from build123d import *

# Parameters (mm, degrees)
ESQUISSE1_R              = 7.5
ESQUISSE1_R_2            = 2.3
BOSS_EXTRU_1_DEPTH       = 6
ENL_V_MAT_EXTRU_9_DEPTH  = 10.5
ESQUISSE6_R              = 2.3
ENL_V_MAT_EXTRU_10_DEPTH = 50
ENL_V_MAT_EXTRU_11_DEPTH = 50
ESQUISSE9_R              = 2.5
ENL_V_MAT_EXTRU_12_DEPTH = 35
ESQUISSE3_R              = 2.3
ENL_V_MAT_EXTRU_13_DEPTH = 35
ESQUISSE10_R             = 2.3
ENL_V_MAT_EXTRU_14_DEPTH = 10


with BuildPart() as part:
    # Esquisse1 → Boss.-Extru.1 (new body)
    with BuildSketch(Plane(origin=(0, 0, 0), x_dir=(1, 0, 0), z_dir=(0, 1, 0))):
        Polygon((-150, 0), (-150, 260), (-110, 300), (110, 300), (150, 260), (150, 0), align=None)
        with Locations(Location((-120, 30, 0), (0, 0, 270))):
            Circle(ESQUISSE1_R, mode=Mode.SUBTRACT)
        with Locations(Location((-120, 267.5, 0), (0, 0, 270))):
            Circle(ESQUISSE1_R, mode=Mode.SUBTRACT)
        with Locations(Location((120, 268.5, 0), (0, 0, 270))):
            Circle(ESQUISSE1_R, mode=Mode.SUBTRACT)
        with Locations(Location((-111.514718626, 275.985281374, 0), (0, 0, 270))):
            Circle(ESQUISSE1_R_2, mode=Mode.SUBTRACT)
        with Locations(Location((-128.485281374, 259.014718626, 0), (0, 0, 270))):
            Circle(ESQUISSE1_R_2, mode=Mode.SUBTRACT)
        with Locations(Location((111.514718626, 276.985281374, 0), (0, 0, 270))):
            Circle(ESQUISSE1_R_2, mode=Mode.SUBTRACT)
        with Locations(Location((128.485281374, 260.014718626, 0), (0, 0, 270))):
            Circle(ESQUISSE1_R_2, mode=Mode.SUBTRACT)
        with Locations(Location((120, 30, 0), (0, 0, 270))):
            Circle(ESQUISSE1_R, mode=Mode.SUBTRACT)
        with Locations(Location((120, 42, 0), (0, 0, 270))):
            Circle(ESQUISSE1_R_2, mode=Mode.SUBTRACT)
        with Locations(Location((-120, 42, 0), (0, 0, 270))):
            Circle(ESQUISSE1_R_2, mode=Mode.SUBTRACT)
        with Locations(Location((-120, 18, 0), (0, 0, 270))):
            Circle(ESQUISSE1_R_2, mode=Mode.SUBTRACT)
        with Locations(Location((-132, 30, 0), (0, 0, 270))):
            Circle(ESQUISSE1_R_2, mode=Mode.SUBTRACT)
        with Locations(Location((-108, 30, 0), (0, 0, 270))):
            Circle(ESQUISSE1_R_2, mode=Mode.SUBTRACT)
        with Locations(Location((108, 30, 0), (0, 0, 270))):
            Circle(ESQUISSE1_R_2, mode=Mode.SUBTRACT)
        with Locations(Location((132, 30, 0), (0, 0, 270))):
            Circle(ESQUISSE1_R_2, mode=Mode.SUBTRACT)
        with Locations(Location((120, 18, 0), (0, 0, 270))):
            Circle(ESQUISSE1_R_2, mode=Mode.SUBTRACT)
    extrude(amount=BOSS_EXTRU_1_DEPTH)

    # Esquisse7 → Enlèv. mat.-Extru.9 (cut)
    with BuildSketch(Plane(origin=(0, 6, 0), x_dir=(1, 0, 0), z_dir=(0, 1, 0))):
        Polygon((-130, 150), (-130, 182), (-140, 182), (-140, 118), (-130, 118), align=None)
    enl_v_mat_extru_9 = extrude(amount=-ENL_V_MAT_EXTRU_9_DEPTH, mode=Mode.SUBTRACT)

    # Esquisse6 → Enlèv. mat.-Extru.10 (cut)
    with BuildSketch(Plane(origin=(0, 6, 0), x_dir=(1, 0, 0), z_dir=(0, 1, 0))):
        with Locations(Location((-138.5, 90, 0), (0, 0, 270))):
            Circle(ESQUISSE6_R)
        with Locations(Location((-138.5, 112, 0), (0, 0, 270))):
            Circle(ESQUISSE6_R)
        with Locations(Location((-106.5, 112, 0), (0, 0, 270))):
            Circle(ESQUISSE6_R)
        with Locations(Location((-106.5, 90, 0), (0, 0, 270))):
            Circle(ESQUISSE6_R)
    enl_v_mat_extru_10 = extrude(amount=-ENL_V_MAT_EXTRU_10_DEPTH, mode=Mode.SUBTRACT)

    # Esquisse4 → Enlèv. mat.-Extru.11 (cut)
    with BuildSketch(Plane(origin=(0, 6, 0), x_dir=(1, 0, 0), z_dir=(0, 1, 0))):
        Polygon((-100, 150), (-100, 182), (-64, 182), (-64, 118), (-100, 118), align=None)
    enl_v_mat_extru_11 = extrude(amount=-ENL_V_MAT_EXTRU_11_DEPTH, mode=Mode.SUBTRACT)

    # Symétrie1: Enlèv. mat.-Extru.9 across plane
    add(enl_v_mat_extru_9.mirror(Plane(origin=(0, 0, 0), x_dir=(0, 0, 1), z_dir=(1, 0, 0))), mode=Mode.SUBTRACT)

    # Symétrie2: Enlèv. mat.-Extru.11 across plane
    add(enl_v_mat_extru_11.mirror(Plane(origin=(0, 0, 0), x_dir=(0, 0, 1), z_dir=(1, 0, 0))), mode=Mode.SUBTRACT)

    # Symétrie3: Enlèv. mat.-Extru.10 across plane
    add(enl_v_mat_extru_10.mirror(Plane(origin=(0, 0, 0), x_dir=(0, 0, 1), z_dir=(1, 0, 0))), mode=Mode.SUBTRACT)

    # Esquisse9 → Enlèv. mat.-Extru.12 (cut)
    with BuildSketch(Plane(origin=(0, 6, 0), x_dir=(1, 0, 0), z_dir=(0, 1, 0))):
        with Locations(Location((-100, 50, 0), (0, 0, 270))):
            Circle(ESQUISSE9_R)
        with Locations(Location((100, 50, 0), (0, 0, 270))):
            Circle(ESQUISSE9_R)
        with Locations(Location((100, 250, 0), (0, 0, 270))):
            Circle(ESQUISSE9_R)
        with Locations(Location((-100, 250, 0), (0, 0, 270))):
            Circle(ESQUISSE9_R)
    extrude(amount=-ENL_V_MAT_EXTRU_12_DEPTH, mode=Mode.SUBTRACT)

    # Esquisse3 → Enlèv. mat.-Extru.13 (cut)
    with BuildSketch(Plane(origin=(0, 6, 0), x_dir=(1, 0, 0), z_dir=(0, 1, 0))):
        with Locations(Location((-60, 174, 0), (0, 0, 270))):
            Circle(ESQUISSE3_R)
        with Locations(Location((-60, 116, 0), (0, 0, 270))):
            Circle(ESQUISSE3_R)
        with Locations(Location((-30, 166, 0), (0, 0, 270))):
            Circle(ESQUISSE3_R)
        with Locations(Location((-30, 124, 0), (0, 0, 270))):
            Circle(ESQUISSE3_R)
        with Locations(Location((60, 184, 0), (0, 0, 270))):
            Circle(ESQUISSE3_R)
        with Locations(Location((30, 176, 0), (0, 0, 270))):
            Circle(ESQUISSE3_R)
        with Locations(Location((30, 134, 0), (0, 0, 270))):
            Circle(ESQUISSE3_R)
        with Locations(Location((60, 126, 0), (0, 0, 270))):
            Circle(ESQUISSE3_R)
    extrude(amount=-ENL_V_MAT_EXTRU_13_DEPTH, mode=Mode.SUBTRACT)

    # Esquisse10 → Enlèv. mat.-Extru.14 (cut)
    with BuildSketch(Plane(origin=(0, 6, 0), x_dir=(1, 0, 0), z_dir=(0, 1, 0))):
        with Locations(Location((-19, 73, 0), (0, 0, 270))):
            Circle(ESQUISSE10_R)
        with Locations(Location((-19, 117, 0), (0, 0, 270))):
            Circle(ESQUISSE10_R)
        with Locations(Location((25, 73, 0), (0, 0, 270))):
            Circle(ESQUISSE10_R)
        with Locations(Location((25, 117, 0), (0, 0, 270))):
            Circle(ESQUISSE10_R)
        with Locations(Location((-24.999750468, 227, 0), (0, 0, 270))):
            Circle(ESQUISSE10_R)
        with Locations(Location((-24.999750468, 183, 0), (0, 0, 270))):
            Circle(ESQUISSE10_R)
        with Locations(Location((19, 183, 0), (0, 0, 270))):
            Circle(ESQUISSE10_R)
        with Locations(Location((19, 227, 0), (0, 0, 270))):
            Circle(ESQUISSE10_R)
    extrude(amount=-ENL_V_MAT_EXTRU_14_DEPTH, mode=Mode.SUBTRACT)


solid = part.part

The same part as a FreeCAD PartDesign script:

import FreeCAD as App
import Part
import Sketcher
Q = App.Units.Quantity


def add_polygon(sketch, points):
    """Adds a closed chain of lines whose ends are joined by coincident constraints."""
    first, n = sketch.GeometryCount, len(points)
    for a, b in zip(points, points[1:] + points[:1]):
        sketch.addGeometry(Part.LineSegment(App.Vector(*a, 0), App.Vector(*b, 0)), False)
    for i in range(n):
        sketch.addConstraint(Sketcher.Constraint("Coincident", first + i, 2, first + (i + 1) % n, 1))

doc = App.newDocument("Part")
body = doc.addObject("PartDesign::Body", "Body")

# Sketch on XZ plane
sketch1 = body.newObject("Sketcher::SketchObject", "Sketch")
sketch1.AttachmentSupport = (doc.getObject("XZ_Plane"), [""])
sketch1.MapMode = "FlatFace"
add_polygon(sketch1, [(-150, -260), (-150, 0), (150, 0), (150, -260), (110, -300), (-110, -300)])  # lines 0-5
sketch1.addGeometry(Part.Circle(App.Vector(120, -18, 0), App.Vector(0, 0, 1), 2.3), False)  # 6
sketch1.addGeometry(Part.Circle(App.Vector(132, -30, 0), App.Vector(0, 0, 1), 2.3), False)  # 7
sketch1.addGeometry(Part.Circle(App.Vector(120, -30, 0), App.Vector(0, 0, 1), 7.5), False)  # 8
sketch1.addGeometry(Part.Circle(App.Vector(108, -30, 0), App.Vector(0, 0, 1), 2.3), False)  # 9
sketch1.addGeometry(Part.Circle(App.Vector(120, -42, 0), App.Vector(0, 0, 1), 2.3), False)  # 10
sketch1.addGeometry(Part.Circle(App.Vector(-108, -30, 0), App.Vector(0, 0, 1), 2.3), False)  # 11
sketch1.addGeometry(Part.Circle(App.Vector(-120, -18, 0), App.Vector(0, 0, 1), 2.3), False)  # 12
sketch1.addGeometry(Part.Circle(App.Vector(-120, -30, 0), App.Vector(0, 0, 1), 7.5), False)  # 13
sketch1.addGeometry(Part.Circle(App.Vector(-132, -30, 0), App.Vector(0, 0, 1), 2.3), False)  # 14
sketch1.addGeometry(Part.Circle(App.Vector(-120, -42, 0), App.Vector(0, 0, 1), 2.3), False)  # 15
sketch1.addGeometry(Part.Circle(App.Vector(128.5, -260, 0), App.Vector(0, 0, 1), 2.3), False)  # 16
sketch1.addGeometry(Part.Circle(App.Vector(120, -268.5, 0), App.Vector(0, 0, 1), 7.5), False)  # 17
sketch1.addGeometry(Part.Circle(App.Vector(111.5, -277, 0), App.Vector(0, 0, 1), 2.3), False)  # 18
sketch1.addGeometry(Part.Circle(App.Vector(-128.5, -259, 0), App.Vector(0, 0, 1), 2.3), False)  # 19
sketch1.addGeometry(Part.Circle(App.Vector(-111.5, -276, 0), App.Vector(0, 0, 1), 2.3), False)  # 20
sketch1.addGeometry(Part.Circle(App.Vector(-120, -267.5, 0), App.Vector(0, 0, 1), 7.5), False)  # 21
sketch1.addConstraint(Sketcher.Constraint("Vertical", 0))
sketch1.addConstraint(Sketcher.Constraint("Horizontal", 1))
sketch1.addConstraint(Sketcher.Constraint("Vertical", 2))
sketch1.addConstraint(Sketcher.Constraint("Horizontal", 4))
sketch1.addConstraint(Sketcher.Constraint("Equal", 6, 7))
sketch1.addConstraint(Sketcher.Constraint("Equal", 7, 9))
sketch1.addConstraint(Sketcher.Constraint("Equal", 9, 10))
sketch1.addConstraint(Sketcher.Constraint("Equal", 10, 11))
sketch1.addConstraint(Sketcher.Constraint("Equal", 11, 12))
sketch1.addConstraint(Sketcher.Constraint("Equal", 8, 13))
sketch1.addConstraint(Sketcher.Constraint("Equal", 12, 14))
sketch1.addConstraint(Sketcher.Constraint("Equal", 14, 15))
sketch1.addConstraint(Sketcher.Constraint("Equal", 15, 16))
sketch1.addConstraint(Sketcher.Constraint("Equal", 13, 17))
sketch1.addConstraint(Sketcher.Constraint("Equal", 16, 18))
sketch1.addConstraint(Sketcher.Constraint("Equal", 18, 19))
sketch1.addConstraint(Sketcher.Constraint("Equal", 19, 20))
sketch1.addConstraint(Sketcher.Constraint("Equal", 17, 21))
sketch1.addConstraint(Sketcher.Constraint("Symmetric", 0, 2, 1, 2, -1, 1))
sketch1.addConstraint(Sketcher.Constraint("Symmetric", 9, 3, 11, 3, -2))
sketch1.addConstraint(Sketcher.Constraint("Symmetric", 6, 3, 12, 3, -2))
sketch1.addConstraint(Sketcher.Constraint("Symmetric", 8, 3, 13, 3, -2))
sketch1.addConstraint(Sketcher.Constraint("Symmetric", 7, 3, 14, 3, -2))
sketch1.addConstraint(Sketcher.Constraint("Symmetric", 10, 3, 15, 3, -2))
sketch1.addConstraint(Sketcher.Constraint("Perpendicular", 3, 5))
sketch1.addConstraint(Sketcher.Constraint("Horizontal", 7, 3, 8, 3))
sketch1.addConstraint(Sketcher.Constraint("Horizontal", 8, 3, 9, 3))
sketch1.addConstraint(Sketcher.Constraint("Horizontal", 2, 2, 5, 2))
sketch1.addConstraint(Sketcher.Constraint("Vertical", 6, 3, 8, 3))
sketch1.addConstraint(Sketcher.Constraint("Vertical", 8, 3, 10, 3))
sketch1.addConstraint(Sketcher.Constraint("Vertical", 10, 3, 17, 3))
sketch1.addConstraint(Sketcher.Constraint("Vertical", 15, 3, 21, 3))
sketch1.addConstraint(Sketcher.Constraint("Equal", 3, 5))
sketch1.addConstraint(Sketcher.Constraint("Diameter", 8, Q("15 mm")))
sketch1.addConstraint(Sketcher.Constraint("Diameter", 6, Q("4.6 mm")))
sketch1.addConstraint(Sketcher.Constraint("DistanceX", 1, 1, 1, 2, Q("300 mm")))
sketch1.addConstraint(Sketcher.Constraint("DistanceX", 4, 2, 4, 1, Q("220 mm")))
sketch1.addConstraint(Sketcher.Constraint("DistanceY", 0, 1, 0, 2, Q("260 mm")))
sketch1.addConstraint(Sketcher.Constraint("DistanceX", -1, 1, 6, 3, Q("120 mm")))
sketch1.addConstraint(Sketcher.Constraint("DistanceY", 6, 3, -1, 1, Q("18 mm")))
sketch1.addConstraint(Sketcher.Constraint("DistanceX", -1, 1, 7, 3, Q("132 mm")))
sketch1.addConstraint(Sketcher.Constraint("DistanceY", 7, 3, -1, 1, Q("30 mm")))
sketch1.addConstraint(Sketcher.Constraint("DistanceX", -1, 1, 9, 3, Q("108 mm")))
sketch1.addConstraint(Sketcher.Constraint("DistanceY", 10, 3, -1, 1, Q("42 mm")))
sketch1.addConstraint(Sketcher.Constraint("DistanceX", 19, 3, 18, 3, Q("240 mm")))
sketch1.addConstraint(Sketcher.Constraint("DistanceY", 18, 3, 20, 3, Q("1 mm")))
sketch1.addConstraint(Sketcher.Constraint("DistanceX", 20, 3, 16, 3, Q("240 mm")))
sketch1.addConstraint(Sketcher.Constraint("DistanceY", 17, 3, -1, 1, Q("268.5 mm")))
sketch1.addConstraint(Sketcher.Constraint("DistanceY", 21, 3, -1, 1, Q("267.5 mm")))
sketch1.addConstraint(Sketcher.Constraint("DistanceX", -1, 1, 16, 3, Q("128.485281 mm")))
sketch1.addConstraint(Sketcher.Constraint("DistanceY", 16, 3, -1, 1, Q("260.014719 mm")))
sketch1.addConstraint(Sketcher.Constraint("DistanceX", -1, 1, 18, 3, Q("111.514719 mm")))
sketch1.addConstraint(Sketcher.Constraint("DistanceY", 18, 3, -1, 1, Q("276.985281 mm")))
sketch1.addConstraint(Sketcher.Constraint("DistanceY", 19, 3, -1, 1, Q("259.014719 mm")))
pad1 = body.newObject("PartDesign::Pad", "Pad")
pad1.Profile = sketch1
pad1.Length = 6
pad1.Reversed = True

# Sketch on XZ plane
sketch2 = body.newObject("Sketcher::SketchObject", "Sketch001")
sketch2.AttachmentSupport = (doc.getObject("XZ_Plane"), [""])
sketch2.MapMode = "FlatFace"
sketch2.AttachmentOffset = App.Placement(App.Vector(0, 0, -6), App.Rotation())
add_polygon(sketch2, [(-130, -182), (-140, -182), (-140, -118), (-130, -118)])  # lines 0-3
sketch2.addConstraint(Sketcher.Constraint("Horizontal", 0))
sketch2.addConstraint(Sketcher.Constraint("Vertical", 1))
sketch2.addConstraint(Sketcher.Constraint("Horizontal", 2))
sketch2.addConstraint(Sketcher.Constraint("Vertical", 3))
sketch2.addConstraint(Sketcher.Constraint("DistanceX", 0, 2, 0, 1, Q("10 mm")))
sketch2.addConstraint(Sketcher.Constraint("DistanceY", 1, 1, 1, 2, Q("64 mm")))
sketch2.addConstraint(Sketcher.Constraint("DistanceX", 0, 2, -1, 1, Q("140 mm")))
sketch2.addConstraint(Sketcher.Constraint("DistanceY", 0, 2, -1, 1, Q("182 mm")))
pocket1 = body.newObject("PartDesign::Pocket", "Pocket")
pocket1.Profile = sketch2
pocket1.Length = 10.5
pocket1.Reversed = True

# Sketch on XZ plane
sketch3 = body.newObject("Sketcher::SketchObject", "Sketch002")
sketch3.AttachmentSupport = (doc.getObject("XZ_Plane"), [""])
sketch3.MapMode = "FlatFace"
sketch3.AttachmentOffset = App.Placement(App.Vector(0, 0, -6), App.Rotation())
sketch3.addGeometry(Part.Circle(App.Vector(-138.5, -90, 0), App.Vector(0, 0, 1), 2.3), False)
sketch3.addGeometry(Part.Circle(App.Vector(-138.5, -112, 0), App.Vector(0, 0, 1), 2.3), False)
sketch3.addGeometry(Part.Circle(App.Vector(-106.5, -112, 0), App.Vector(0, 0, 1), 2.3), False)
sketch3.addGeometry(Part.Circle(App.Vector(-106.5, -90, 0), App.Vector(0, 0, 1), 2.3), False)
sketch3.addConstraint(Sketcher.Constraint("Equal", 0, 1))
sketch3.addConstraint(Sketcher.Constraint("Equal", 1, 2))
sketch3.addConstraint(Sketcher.Constraint("Equal", 2, 3))
sketch3.addConstraint(Sketcher.Constraint("Horizontal", 1, 3, 2, 3))
sketch3.addConstraint(Sketcher.Constraint("Horizontal", 0, 3, 3, 3))
sketch3.addConstraint(Sketcher.Constraint("Vertical", 0, 3, 1, 3))
sketch3.addConstraint(Sketcher.Constraint("Vertical", 2, 3, 3, 3))
sketch3.addConstraint(Sketcher.Constraint("Diameter", 0, Q("4.6 mm")))
sketch3.addConstraint(Sketcher.Constraint("DistanceY", 0, 3, -1, 1, Q("90 mm")))
sketch3.addConstraint(Sketcher.Constraint("DistanceY", 1, 3, -1, 1, Q("112 mm")))
sketch3.addConstraint(Sketcher.Constraint("DistanceX", 1, 3, 2, 3, Q("32 mm")))
sketch3.addConstraint(Sketcher.Constraint("DistanceX", 0, 3, -1, 1, Q("138.5 mm")))
pocket2 = body.newObject("PartDesign::Pocket", "Pocket001")
pocket2.Profile = sketch3
pocket2.Length = 50
pocket2.Reversed = True

# Sketch on XZ plane
sketch4 = body.newObject("Sketcher::SketchObject", "Sketch003")
sketch4.AttachmentSupport = (doc.getObject("XZ_Plane"), [""])
sketch4.MapMode = "FlatFace"
sketch4.AttachmentOffset = App.Placement(App.Vector(0, 0, -6), App.Rotation())
add_polygon(sketch4, [(-100, -182), (-100, -118), (-64, -118), (-64, -182)])  # lines 0-3
sketch4.addConstraint(Sketcher.Constraint("Vertical", 0))
sketch4.addConstraint(Sketcher.Constraint("Horizontal", 1))
sketch4.addConstraint(Sketcher.Constraint("Vertical", 2))
sketch4.addConstraint(Sketcher.Constraint("Horizontal", 3))
sketch4.addConstraint(Sketcher.Constraint("DistanceX", 1, 1, 1, 2, Q("36 mm")))
sketch4.addConstraint(Sketcher.Constraint("DistanceY", 0, 1, 0, 2, Q("64 mm")))
sketch4.addConstraint(Sketcher.Constraint("DistanceX", 0, 2, -1, 1, Q("100 mm")))
sketch4.addConstraint(Sketcher.Constraint("DistanceY", 0, 2, -1, 1, Q("118 mm")))
pocket3 = body.newObject("PartDesign::Pocket", "Pocket002")
pocket3.Profile = sketch4
pocket3.Length = 50
pocket3.Reversed = True
doc.recompute()

mirrored = body.newObject("PartDesign::Mirrored", "Mirrored")
mirrored.Originals = [pocket1]
mirrored.MirrorPlane = (doc.getObject("YZ_Plane"), [""])
body.Tip = mirrored
doc.recompute()

mirrored2 = body.newObject("PartDesign::Mirrored", "Mirrored001")
mirrored2.Originals = [pocket3]
mirrored2.MirrorPlane = (doc.getObject("YZ_Plane"), [""])
body.Tip = mirrored2
doc.recompute()

mirrored3 = body.newObject("PartDesign::Mirrored", "Mirrored002")
mirrored3.Originals = [pocket2]
mirrored3.MirrorPlane = (doc.getObject("YZ_Plane"), [""])
body.Tip = mirrored3

# Sketch on XZ plane
sketch5 = body.newObject("Sketcher::SketchObject", "Sketch004")
sketch5.AttachmentSupport = (doc.getObject("XZ_Plane"), [""])
sketch5.MapMode = "FlatFace"
sketch5.AttachmentOffset = App.Placement(App.Vector(0, 0, -6), App.Rotation())
sketch5.addGeometry(Part.Circle(App.Vector(-100, -50, 0), App.Vector(0, 0, 1), 2.5), False)
sketch5.addGeometry(Part.Circle(App.Vector(100, -50, 0), App.Vector(0, 0, 1), 2.5), False)
sketch5.addGeometry(Part.Circle(App.Vector(100, -250, 0), App.Vector(0, 0, 1), 2.5), False)
sketch5.addGeometry(Part.Circle(App.Vector(-100, -250, 0), App.Vector(0, 0, 1), 2.5), False)
sketch5.addConstraint(Sketcher.Constraint("Equal", 0, 1))
sketch5.addConstraint(Sketcher.Constraint("Equal", 1, 2))
sketch5.addConstraint(Sketcher.Constraint("Equal", 2, 3))
sketch5.addConstraint(Sketcher.Constraint("Symmetric", 0, 3, 1, 3, -2))
sketch5.addConstraint(Sketcher.Constraint("Symmetric", 2, 3, 3, 3, -2))
sketch5.addConstraint(Sketcher.Constraint("Vertical", 1, 3, 2, 3))
sketch5.addConstraint(Sketcher.Constraint("Diameter", 0, Q("5 mm")))
sketch5.addConstraint(Sketcher.Constraint("DistanceX", 0, 3, -1, 1, Q("100 mm")))
sketch5.addConstraint(Sketcher.Constraint("DistanceY", 0, 3, -1, 1, Q("50 mm")))
sketch5.addConstraint(Sketcher.Constraint("DistanceY", 2, 3, -1, 1, Q("250 mm")))
pocket4 = body.newObject("PartDesign::Pocket", "Pocket003")
pocket4.Profile = sketch5
pocket4.Length = 35
pocket4.Reversed = True

# Sketch on XZ plane
sketch6 = body.newObject("Sketcher::SketchObject", "Sketch005")
sketch6.AttachmentSupport = (doc.getObject("XZ_Plane"), [""])
sketch6.MapMode = "FlatFace"
sketch6.AttachmentOffset = App.Placement(App.Vector(0, 0, -6), App.Rotation())
sketch6.addGeometry(Part.Circle(App.Vector(-60, -174, 0), App.Vector(0, 0, 1), 2.3), False)
sketch6.addGeometry(Part.Circle(App.Vector(-60, -116, 0), App.Vector(0, 0, 1), 2.3), False)
sketch6.addGeometry(Part.Circle(App.Vector(-30, -166, 0), App.Vector(0, 0, 1), 2.3), False)
sketch6.addGeometry(Part.Circle(App.Vector(-30, -124, 0), App.Vector(0, 0, 1), 2.3), False)
sketch6.addGeometry(Part.Circle(App.Vector(60, -184, 0), App.Vector(0, 0, 1), 2.3), False)
sketch6.addGeometry(Part.Circle(App.Vector(30, -176, 0), App.Vector(0, 0, 1), 2.3), False)
sketch6.addGeometry(Part.Circle(App.Vector(30, -134, 0), App.Vector(0, 0, 1), 2.3), False)
sketch6.addGeometry(Part.Circle(App.Vector(60, -126, 0), App.Vector(0, 0, 1), 2.3), False)
sketch6.addConstraint(Sketcher.Constraint("Equal", 0, 1))
sketch6.addConstraint(Sketcher.Constraint("Equal", 1, 2))
sketch6.addConstraint(Sketcher.Constraint("Equal", 2, 3))
sketch6.addConstraint(Sketcher.Constraint("Equal", 3, 4))
sketch6.addConstraint(Sketcher.Constraint("Equal", 4, 5))
sketch6.addConstraint(Sketcher.Constraint("Equal", 5, 6))
sketch6.addConstraint(Sketcher.Constraint("Equal", 6, 7))
sketch6.addConstraint(Sketcher.Constraint("Vertical", 0, 3, 1, 3))
sketch6.addConstraint(Sketcher.Constraint("Vertical", 2, 3, 3, 3))
sketch6.addConstraint(Sketcher.Constraint("Vertical", 5, 3, 6, 3))
sketch6.addConstraint(Sketcher.Constraint("Vertical", 4, 3, 7, 3))
sketch6.addConstraint(Sketcher.Constraint("Diameter", 0, Q("4.6 mm")))
sketch6.addConstraint(Sketcher.Constraint("DistanceX", 0, 3, -1, 1, Q("60 mm")))
sketch6.addConstraint(Sketcher.Constraint("DistanceY", 0, 3, -1, 1, Q("174 mm")))
sketch6.addConstraint(Sketcher.Constraint("DistanceY", 1, 3, -1, 1, Q("116 mm")))
sketch6.addConstraint(Sketcher.Constraint("DistanceX", 2, 3, -1, 1, Q("30 mm")))
sketch6.addConstraint(Sketcher.Constraint("DistanceY", 2, 3, -1, 1, Q("166 mm")))
sketch6.addConstraint(Sketcher.Constraint("DistanceY", 3, 3, -1, 1, Q("124 mm")))
sketch6.addConstraint(Sketcher.Constraint("DistanceX", -1, 1, 4, 3, Q("60 mm")))
sketch6.addConstraint(Sketcher.Constraint("DistanceY", 4, 3, -1, 1, Q("184 mm")))
sketch6.addConstraint(Sketcher.Constraint("DistanceX", -1, 1, 5, 3, Q("30 mm")))
sketch6.addConstraint(Sketcher.Constraint("DistanceY", 5, 3, -1, 1, Q("176 mm")))
sketch6.addConstraint(Sketcher.Constraint("DistanceY", 6, 3, -1, 1, Q("134 mm")))
sketch6.addConstraint(Sketcher.Constraint("DistanceY", 7, 3, -1, 1, Q("126 mm")))
pocket5 = body.newObject("PartDesign::Pocket", "Pocket004")
pocket5.Profile = sketch6
pocket5.Length = 35
pocket5.Reversed = True

# Sketch on XZ plane
sketch7 = body.newObject("Sketcher::SketchObject", "Sketch006")
sketch7.AttachmentSupport = (doc.getObject("XZ_Plane"), [""])
sketch7.MapMode = "FlatFace"
sketch7.AttachmentOffset = App.Placement(App.Vector(0, 0, -6), App.Rotation())
sketch7.addGeometry(Part.Circle(App.Vector(-19, -73, 0), App.Vector(0, 0, 1), 2.3), False)
sketch7.addGeometry(Part.Circle(App.Vector(-19, -117, 0), App.Vector(0, 0, 1), 2.3), False)
sketch7.addGeometry(Part.Circle(App.Vector(25, -73, 0), App.Vector(0, 0, 1), 2.3), False)
sketch7.addGeometry(Part.Circle(App.Vector(25, -117, 0), App.Vector(0, 0, 1), 2.3), False)
sketch7.addGeometry(Part.Circle(App.Vector(-25, -227, 0), App.Vector(0, 0, 1), 2.3), False)
sketch7.addGeometry(Part.Circle(App.Vector(-25, -183, 0), App.Vector(0, 0, 1), 2.3), False)
sketch7.addGeometry(Part.Circle(App.Vector(19, -183, 0), App.Vector(0, 0, 1), 2.3), False)
sketch7.addGeometry(Part.Circle(App.Vector(19, -227, 0), App.Vector(0, 0, 1), 2.3), False)
sketch7.addConstraint(Sketcher.Constraint("Equal", 0, 1))
sketch7.addConstraint(Sketcher.Constraint("Equal", 1, 2))
sketch7.addConstraint(Sketcher.Constraint("Equal", 2, 3))
sketch7.addConstraint(Sketcher.Constraint("Equal", 3, 4))
sketch7.addConstraint(Sketcher.Constraint("Equal", 4, 5))
sketch7.addConstraint(Sketcher.Constraint("Equal", 5, 6))
sketch7.addConstraint(Sketcher.Constraint("Equal", 6, 7))
sketch7.addConstraint(Sketcher.Constraint("Horizontal", 0, 3, 2, 3))
sketch7.addConstraint(Sketcher.Constraint("Horizontal", 1, 3, 3, 3))
sketch7.addConstraint(Sketcher.Constraint("Horizontal", 5, 3, 6, 3))
sketch7.addConstraint(Sketcher.Constraint("Horizontal", 4, 3, 7, 3))
sketch7.addConstraint(Sketcher.Constraint("Vertical", 0, 3, 1, 3))
sketch7.addConstraint(Sketcher.Constraint("Vertical", 2, 3, 3, 3))
sketch7.addConstraint(Sketcher.Constraint("Vertical", 4, 3, 5, 3))
sketch7.addConstraint(Sketcher.Constraint("Vertical", 6, 3, 7, 3))
sketch7.addConstraint(Sketcher.Constraint("Diameter", 0, Q("4.6 mm")))
sketch7.addConstraint(Sketcher.Constraint("DistanceX", 0, 3, -1, 1, Q("19 mm")))
sketch7.addConstraint(Sketcher.Constraint("DistanceY", 0, 3, -1, 1, Q("73 mm")))
sketch7.addConstraint(Sketcher.Constraint("DistanceY", 1, 3, -1, 1, Q("117 mm")))
sketch7.addConstraint(Sketcher.Constraint("DistanceX", -1, 1, 2, 3, Q("25 mm")))
sketch7.addConstraint(Sketcher.Constraint("DistanceY", 4, 3, -1, 1, Q("227 mm")))
sketch7.addConstraint(Sketcher.Constraint("DistanceY", 5, 3, -1, 1, Q("183 mm")))
sketch7.addConstraint(Sketcher.Constraint("DistanceX", -1, 1, 6, 3, Q("19 mm")))
sketch7.addConstraint(Sketcher.Constraint("DistanceX", 4, 3, -1, 1, Q("24.99975 mm")))
pocket6 = body.newObject("PartDesign::Pocket", "Pocket005")
pocket6.Profile = sketch7
pocket6.Length = 10
pocket6.Reversed = True

doc.recompute()
